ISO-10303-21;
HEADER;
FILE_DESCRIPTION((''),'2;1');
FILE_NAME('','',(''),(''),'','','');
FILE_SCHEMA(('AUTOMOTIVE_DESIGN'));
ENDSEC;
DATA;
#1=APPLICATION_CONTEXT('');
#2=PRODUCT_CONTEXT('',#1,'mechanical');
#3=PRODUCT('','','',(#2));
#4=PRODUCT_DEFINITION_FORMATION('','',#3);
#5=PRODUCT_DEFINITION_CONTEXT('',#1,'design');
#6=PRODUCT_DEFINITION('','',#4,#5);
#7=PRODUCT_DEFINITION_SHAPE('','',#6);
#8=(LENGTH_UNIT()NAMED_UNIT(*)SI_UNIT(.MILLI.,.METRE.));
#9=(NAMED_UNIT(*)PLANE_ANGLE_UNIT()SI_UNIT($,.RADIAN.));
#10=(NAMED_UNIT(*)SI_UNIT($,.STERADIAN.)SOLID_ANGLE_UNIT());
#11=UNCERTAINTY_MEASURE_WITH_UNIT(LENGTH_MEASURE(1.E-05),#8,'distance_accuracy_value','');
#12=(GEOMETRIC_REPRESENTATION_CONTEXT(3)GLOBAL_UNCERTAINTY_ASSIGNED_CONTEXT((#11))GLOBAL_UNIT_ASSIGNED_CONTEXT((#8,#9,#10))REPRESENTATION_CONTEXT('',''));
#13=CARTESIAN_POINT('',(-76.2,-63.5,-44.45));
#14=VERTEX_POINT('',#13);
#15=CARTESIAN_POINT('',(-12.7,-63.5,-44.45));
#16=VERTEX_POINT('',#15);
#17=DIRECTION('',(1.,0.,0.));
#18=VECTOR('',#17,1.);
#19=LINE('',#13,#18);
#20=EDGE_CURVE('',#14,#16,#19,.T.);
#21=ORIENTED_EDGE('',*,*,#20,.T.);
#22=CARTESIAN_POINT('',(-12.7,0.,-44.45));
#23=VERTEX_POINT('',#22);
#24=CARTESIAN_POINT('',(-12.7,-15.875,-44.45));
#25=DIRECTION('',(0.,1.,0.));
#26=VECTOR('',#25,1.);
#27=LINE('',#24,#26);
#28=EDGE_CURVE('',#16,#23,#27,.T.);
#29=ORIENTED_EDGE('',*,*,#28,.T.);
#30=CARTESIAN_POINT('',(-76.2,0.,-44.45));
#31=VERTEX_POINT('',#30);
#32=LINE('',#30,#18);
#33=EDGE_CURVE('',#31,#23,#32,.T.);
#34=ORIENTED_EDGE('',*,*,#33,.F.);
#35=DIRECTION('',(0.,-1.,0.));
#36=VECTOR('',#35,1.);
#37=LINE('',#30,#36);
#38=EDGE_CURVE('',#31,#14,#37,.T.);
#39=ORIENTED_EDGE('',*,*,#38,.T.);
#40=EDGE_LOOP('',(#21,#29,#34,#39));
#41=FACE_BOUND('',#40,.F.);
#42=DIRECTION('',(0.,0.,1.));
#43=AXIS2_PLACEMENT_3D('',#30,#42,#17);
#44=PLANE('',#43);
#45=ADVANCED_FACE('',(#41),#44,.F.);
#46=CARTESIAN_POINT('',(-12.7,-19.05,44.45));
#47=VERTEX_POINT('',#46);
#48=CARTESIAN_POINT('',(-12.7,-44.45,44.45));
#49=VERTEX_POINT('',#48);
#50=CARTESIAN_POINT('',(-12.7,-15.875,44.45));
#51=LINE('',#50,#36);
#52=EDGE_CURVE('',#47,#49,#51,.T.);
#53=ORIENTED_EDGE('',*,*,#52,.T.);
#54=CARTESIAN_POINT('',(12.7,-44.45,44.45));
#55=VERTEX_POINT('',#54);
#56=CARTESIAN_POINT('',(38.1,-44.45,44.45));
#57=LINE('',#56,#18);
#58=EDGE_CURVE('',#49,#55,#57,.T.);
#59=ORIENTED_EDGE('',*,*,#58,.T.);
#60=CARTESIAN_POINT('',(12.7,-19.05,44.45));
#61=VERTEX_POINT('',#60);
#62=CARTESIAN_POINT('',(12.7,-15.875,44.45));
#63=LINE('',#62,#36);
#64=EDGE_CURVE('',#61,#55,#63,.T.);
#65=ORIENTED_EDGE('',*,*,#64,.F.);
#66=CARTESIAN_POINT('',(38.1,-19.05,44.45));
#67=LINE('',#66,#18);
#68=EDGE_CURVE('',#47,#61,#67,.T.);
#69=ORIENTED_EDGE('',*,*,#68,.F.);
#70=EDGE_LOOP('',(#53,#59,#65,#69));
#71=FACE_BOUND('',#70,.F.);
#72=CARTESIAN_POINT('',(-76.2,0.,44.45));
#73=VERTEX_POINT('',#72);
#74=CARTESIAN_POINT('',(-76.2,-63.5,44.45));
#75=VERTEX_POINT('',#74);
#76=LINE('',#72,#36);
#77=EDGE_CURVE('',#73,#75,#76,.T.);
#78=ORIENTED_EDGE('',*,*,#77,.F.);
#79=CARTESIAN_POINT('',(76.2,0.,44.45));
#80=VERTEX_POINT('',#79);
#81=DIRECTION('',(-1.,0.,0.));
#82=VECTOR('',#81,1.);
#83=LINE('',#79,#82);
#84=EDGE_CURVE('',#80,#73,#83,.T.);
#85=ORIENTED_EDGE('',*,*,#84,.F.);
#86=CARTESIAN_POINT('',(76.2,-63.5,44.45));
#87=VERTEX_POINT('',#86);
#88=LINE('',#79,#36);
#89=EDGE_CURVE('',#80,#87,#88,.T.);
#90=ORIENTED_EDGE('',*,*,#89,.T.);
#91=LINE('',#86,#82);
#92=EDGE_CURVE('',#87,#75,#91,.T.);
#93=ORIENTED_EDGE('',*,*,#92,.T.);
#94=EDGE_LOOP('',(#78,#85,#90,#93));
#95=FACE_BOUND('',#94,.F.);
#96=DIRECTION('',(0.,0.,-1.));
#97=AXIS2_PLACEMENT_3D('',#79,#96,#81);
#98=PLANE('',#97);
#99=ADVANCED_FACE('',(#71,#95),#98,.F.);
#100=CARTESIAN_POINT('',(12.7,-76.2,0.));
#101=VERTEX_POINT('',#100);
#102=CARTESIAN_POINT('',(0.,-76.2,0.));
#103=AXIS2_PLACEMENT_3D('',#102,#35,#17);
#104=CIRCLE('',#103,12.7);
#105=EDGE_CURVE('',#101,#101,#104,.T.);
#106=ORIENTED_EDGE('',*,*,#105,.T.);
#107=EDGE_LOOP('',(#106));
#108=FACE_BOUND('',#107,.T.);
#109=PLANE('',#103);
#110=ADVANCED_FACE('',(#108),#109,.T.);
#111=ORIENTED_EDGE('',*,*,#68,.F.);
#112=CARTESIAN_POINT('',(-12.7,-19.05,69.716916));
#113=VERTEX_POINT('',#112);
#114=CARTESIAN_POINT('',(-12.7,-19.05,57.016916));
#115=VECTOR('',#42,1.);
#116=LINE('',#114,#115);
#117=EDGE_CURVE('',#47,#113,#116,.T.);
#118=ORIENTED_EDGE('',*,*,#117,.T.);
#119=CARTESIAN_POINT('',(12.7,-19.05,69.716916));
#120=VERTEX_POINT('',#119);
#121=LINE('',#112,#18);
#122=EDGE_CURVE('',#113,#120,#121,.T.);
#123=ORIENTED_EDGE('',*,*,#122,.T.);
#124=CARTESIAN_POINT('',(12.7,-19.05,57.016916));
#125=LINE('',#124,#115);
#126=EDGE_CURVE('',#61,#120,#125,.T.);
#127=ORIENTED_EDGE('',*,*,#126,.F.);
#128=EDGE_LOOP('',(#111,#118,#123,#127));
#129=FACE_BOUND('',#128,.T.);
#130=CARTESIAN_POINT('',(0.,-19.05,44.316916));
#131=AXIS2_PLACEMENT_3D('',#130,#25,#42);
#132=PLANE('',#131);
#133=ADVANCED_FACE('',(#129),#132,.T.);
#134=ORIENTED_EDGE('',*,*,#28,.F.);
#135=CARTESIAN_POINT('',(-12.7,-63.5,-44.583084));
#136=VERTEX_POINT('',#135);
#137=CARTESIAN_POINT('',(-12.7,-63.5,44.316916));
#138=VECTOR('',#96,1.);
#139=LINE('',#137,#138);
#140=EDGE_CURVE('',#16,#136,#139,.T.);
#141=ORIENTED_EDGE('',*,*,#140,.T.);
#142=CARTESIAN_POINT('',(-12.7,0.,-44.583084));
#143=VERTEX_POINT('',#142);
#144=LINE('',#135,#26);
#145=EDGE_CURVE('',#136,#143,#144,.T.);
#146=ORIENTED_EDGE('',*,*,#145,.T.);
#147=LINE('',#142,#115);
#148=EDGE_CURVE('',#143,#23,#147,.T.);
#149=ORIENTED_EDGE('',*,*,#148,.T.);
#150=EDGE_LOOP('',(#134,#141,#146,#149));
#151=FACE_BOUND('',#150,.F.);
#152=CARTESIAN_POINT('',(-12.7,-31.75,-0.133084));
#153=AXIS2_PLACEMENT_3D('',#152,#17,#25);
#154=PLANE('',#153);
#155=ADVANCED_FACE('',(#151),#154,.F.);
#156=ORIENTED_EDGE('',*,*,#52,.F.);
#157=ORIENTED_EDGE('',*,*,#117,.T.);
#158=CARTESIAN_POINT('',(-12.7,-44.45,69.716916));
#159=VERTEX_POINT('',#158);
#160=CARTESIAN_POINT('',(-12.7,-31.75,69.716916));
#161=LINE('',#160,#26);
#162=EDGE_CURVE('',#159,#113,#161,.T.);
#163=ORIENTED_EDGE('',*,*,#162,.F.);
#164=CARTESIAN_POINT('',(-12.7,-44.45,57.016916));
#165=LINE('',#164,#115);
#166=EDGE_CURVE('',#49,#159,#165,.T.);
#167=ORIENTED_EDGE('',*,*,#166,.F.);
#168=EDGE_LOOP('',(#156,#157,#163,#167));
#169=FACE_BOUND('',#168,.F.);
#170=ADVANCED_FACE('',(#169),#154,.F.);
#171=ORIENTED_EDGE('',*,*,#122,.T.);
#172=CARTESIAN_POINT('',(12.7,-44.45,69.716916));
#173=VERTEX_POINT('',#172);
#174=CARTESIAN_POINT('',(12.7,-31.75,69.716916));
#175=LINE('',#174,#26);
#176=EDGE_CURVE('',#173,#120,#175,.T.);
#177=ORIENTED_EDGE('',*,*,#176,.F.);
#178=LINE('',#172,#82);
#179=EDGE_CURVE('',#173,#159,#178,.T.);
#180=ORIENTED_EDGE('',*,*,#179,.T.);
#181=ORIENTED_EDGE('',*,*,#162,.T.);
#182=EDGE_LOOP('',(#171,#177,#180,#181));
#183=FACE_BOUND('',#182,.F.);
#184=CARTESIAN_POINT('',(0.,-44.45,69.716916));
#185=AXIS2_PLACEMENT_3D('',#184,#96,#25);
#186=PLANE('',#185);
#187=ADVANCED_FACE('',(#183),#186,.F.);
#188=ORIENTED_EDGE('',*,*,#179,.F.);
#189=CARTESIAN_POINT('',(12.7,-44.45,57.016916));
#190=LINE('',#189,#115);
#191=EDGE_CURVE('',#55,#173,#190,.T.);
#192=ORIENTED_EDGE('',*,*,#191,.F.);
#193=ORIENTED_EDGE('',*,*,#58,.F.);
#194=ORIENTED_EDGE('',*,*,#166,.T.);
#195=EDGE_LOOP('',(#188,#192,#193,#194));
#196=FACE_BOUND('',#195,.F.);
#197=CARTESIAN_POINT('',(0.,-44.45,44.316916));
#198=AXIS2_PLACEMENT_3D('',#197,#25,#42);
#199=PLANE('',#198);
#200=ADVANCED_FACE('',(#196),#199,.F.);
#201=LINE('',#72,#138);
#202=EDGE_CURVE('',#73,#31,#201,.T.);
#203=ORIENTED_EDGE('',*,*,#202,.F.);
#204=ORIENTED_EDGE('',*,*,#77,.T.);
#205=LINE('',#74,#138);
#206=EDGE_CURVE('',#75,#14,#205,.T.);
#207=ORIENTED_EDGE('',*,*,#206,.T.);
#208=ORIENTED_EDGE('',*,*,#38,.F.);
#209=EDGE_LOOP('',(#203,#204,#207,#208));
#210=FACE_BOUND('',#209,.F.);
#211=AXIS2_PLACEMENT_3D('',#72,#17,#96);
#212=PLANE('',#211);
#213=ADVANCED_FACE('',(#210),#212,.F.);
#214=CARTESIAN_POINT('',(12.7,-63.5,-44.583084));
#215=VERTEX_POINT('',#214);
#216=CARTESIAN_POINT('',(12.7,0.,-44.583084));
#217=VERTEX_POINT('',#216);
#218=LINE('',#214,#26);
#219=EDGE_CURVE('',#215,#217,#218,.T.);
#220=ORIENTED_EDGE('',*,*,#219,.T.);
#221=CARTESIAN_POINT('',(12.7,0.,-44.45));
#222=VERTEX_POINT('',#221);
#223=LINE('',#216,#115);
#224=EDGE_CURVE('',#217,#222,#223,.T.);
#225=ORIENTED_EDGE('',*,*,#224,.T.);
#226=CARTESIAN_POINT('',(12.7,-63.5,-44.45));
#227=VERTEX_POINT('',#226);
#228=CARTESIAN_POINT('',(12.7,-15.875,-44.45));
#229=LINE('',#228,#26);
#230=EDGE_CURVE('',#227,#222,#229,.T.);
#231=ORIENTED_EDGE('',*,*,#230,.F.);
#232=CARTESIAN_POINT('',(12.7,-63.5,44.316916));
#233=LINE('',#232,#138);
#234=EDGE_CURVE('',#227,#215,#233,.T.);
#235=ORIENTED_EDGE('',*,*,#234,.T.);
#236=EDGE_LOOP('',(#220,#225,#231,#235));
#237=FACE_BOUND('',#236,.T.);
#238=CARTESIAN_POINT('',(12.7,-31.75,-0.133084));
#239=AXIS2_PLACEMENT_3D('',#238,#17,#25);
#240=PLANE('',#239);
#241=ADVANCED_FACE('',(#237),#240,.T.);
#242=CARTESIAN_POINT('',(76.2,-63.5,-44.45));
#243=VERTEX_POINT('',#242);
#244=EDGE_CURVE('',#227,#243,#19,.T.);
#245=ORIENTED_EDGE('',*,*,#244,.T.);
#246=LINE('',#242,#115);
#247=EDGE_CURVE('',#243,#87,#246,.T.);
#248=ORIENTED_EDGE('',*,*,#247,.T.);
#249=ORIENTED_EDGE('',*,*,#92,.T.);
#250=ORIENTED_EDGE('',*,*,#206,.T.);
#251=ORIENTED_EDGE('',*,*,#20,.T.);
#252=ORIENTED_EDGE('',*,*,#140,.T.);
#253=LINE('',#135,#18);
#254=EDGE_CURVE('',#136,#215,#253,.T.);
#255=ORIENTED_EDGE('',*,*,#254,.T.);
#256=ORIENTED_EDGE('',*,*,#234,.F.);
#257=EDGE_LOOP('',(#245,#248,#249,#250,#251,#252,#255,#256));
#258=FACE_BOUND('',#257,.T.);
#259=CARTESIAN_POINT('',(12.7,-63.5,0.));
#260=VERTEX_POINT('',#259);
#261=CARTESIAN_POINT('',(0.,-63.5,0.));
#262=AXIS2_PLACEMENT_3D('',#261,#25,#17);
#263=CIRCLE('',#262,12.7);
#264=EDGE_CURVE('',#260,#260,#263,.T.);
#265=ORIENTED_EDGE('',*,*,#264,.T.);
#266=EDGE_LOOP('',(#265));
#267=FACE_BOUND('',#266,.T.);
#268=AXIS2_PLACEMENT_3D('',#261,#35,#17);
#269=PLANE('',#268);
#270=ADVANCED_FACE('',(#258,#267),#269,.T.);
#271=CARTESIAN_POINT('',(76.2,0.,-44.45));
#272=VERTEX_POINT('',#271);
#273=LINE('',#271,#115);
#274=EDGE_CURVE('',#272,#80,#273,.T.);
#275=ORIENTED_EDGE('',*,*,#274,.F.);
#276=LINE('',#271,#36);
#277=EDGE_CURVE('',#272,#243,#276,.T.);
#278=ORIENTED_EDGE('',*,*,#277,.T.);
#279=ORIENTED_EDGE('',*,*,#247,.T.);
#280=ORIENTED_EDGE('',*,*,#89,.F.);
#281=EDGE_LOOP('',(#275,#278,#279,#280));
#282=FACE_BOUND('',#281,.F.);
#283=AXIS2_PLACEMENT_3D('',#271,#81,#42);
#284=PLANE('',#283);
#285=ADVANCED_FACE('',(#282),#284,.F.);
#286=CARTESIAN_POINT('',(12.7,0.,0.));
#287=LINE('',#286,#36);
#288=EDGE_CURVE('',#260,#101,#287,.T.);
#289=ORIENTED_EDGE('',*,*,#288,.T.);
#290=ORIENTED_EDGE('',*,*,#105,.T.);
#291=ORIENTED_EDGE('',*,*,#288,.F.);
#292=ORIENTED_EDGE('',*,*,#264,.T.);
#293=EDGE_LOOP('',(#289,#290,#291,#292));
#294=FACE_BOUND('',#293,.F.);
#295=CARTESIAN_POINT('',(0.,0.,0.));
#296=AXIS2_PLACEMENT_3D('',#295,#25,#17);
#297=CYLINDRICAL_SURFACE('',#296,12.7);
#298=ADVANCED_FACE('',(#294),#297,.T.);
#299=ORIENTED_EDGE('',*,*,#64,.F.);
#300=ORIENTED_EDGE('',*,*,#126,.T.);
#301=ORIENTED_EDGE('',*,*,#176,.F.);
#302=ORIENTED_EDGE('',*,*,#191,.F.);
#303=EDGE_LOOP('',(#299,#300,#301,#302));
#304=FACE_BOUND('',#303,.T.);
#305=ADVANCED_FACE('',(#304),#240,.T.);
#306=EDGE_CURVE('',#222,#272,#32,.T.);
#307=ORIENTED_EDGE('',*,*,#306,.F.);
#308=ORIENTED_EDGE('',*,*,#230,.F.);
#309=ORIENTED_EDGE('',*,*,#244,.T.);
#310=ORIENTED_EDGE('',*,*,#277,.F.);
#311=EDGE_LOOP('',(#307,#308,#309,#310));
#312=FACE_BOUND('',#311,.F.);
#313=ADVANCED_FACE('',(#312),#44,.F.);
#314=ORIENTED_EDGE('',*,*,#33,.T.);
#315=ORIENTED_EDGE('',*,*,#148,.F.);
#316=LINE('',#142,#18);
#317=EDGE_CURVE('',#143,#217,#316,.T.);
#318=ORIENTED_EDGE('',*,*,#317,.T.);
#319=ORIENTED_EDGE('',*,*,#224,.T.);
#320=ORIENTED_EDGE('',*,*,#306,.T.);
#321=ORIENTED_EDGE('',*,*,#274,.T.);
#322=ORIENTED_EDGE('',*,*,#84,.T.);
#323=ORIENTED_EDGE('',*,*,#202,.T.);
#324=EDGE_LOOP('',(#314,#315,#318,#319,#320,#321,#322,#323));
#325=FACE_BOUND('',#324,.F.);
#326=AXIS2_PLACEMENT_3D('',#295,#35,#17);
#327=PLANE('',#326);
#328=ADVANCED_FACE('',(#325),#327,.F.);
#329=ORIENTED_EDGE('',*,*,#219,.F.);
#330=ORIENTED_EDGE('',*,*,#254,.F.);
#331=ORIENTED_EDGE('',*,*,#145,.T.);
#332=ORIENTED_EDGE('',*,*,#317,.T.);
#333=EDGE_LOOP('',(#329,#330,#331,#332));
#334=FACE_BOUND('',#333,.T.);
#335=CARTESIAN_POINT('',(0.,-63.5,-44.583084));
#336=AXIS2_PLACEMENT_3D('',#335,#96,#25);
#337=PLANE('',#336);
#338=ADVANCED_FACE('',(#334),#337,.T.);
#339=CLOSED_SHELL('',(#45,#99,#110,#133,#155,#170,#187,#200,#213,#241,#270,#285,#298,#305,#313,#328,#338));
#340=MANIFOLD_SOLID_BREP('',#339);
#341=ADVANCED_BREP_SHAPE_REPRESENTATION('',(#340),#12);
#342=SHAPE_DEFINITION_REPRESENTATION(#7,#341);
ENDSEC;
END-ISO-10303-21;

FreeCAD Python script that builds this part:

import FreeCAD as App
import Part
import Sketcher
from FreeCAD import Vector
Q = App.Units.Quantity

doc = App.newDocument("Part")
params = doc.addObject("Spreadsheet::Sheet", "Params")
for row, (alias, value) in enumerate([
    ("sketch1_diameter", "1 in"),
    ("sketch1_width", "6 in"),
    ("sketch1_height", "3.5 in"),
    ("pad1_length", "2.5 in"),
    ("sketch2_diameter", "1 in"),
    ("pad2_length", "3 in"),
    ("sketch3_width", "1 in"),
    ("sketch3_width2", "2.5 in"),
    ("sketch3_height", "3.5 in"),
    ("pad3_length", "1 in"),
], start=1):
    params.set(f"A{row}", alias)
    params.set(f"B{row}", "=" + value)
    params.setAlias(f"B{row}", alias)

body = doc.addObject("PartDesign::Body", "Body")

# Sketch on XZ plane
sketch1 = doc.addObject("Sketcher::SketchObject", "Sketch")
body.addObject(sketch1)
sketch1.AttachmentSupport = (doc.XZ_Plane, [""])
sketch1.MapMode = "FlatFace"
sketch1.addGeometry(Part.LineSegment(Vector(-76, 44, 0), Vector(-76, -44, 0)), False)
sketch1.addGeometry(Part.LineSegment(Vector(-76, -44, 0), Vector(76, -44, 0)), False)
sketch1.addGeometry(Part.LineSegment(Vector(76, -44, 0), Vector(76, 44, 0)), False)
sketch1.addGeometry(Part.LineSegment(Vector(76, 44, 0), Vector(-76, 44, 0)), False)
sketch1.addGeometry(Part.Circle(Vector(0, 0, 0), Vector(0, 0, 1), 13), False)
sketch1.addConstraint(Sketcher.Constraint("Coincident", 0, 2, 1, 1))
sketch1.addConstraint(Sketcher.Constraint("Coincident", 1, 2, 2, 1))
sketch1.addConstraint(Sketcher.Constraint("Coincident", 2, 2, 3, 1))
sketch1.addConstraint(Sketcher.Constraint("Coincident", 3, 2, 0, 1))
sketch1.addConstraint(Sketcher.Constraint("Vertical", 0))
sketch1.addConstraint(Sketcher.Constraint("Horizontal", 1))
sketch1.addConstraint(Sketcher.Constraint("Vertical", 2))
sketch1.addConstraint(Sketcher.Constraint("Horizontal", 3))
sketch1.addConstraint(Sketcher.Constraint("Coincident", 4, 3, -1, 1))
sketch1.addConstraint(Sketcher.Constraint("Symmetric", 0, 2, 2, 2, -1, 1))
sketch1.addConstraint(Sketcher.Constraint("Diameter", 4, Q("1 in")))
sketch1.addConstraint(Sketcher.Constraint("DistanceX", 1, 1, 1, 2, Q("6 in")))
sketch1.addConstraint(Sketcher.Constraint("DistanceY", 0, 2, 0, 1, Q("3.5 in")))
sketch1.setExpression("Constraints[10]", "Params.sketch1_diameter")
sketch1.setExpression("Constraints[11]", "Params.sketch1_width")
sketch1.setExpression("Constraints[12]", "Params.sketch1_height")
pad1 = doc.addObject("PartDesign::Pad", "Pad")
body.addObject(pad1)
pad1.Profile = sketch1
pad1.setExpression("Length", "Params.pad1_length")

# Sketch on XZ plane
sketch2 = doc.addObject("Sketcher::SketchObject", "Sketch001")
body.addObject(sketch2)
sketch2.AttachmentSupport = (doc.XZ_Plane, [""])
sketch2.MapMode = "FlatFace"
sketch2.addGeometry(Part.Circle(Vector(0, 0, 0), Vector(0, 0, 1), 13), False)
sketch2.addConstraint(Sketcher.Constraint("Coincident", 0, 3, -1, 1))
sketch2.addConstraint(Sketcher.Constraint("Diameter", 0, Q("1 in")))
sketch2.setExpression("Constraints[1]", "Params.sketch2_diameter")
pad2 = doc.addObject("PartDesign::Pad", "Pad001")
body.addObject(pad2)
pad2.Profile = sketch2
pad2.setExpression("Length", "Params.pad2_length")

# Sketch on YZ plane
sketch3 = doc.addObject("Sketcher::SketchObject", "Sketch002")
body.addObject(sketch3)
sketch3.AttachmentSupport = (doc.YZ_Plane, [""])
sketch3.MapMode = "FlatFace"
sketch3.addGeometry(Part.LineSegment(Vector(-64, 44, 0), Vector(-64, -45, 0)), False)
sketch3.addGeometry(Part.LineSegment(Vector(-64, -45, 0), Vector(0, -45, 0)), False)
sketch3.addGeometry(Part.LineSegment(Vector(0, -45, 0), Vector(0, 44, 0)), False)
sketch3.addGeometry(Part.LineSegment(Vector(0, 44, 0), Vector(-19, 44, 0)), False)
sketch3.addGeometry(Part.LineSegment(Vector(-19, 44, 0), Vector(-19, 70, 0)), False)
sketch3.addGeometry(Part.LineSegment(Vector(-19, 70, 0), Vector(-44, 70, 0)), False)
sketch3.addGeometry(Part.LineSegment(Vector(-44, 70, 0), Vector(-44, 44, 0)), False)
sketch3.addGeometry(Part.LineSegment(Vector(-44, 44, 0), Vector(-64, 44, 0)), False)
sketch3.addConstraint(Sketcher.Constraint("Coincident", 0, 2, 1, 1))
sketch3.addConstraint(Sketcher.Constraint("Coincident", 1, 2, 2, 1))
sketch3.addConstraint(Sketcher.Constraint("Coincident", 2, 2, 3, 1))
sketch3.addConstraint(Sketcher.Constraint("Coincident", 3, 2, 4, 1))
sketch3.addConstraint(Sketcher.Constraint("Coincident", 4, 2, 5, 1))
sketch3.addConstraint(Sketcher.Constraint("Coincident", 5, 2, 6, 1))
sketch3.addConstraint(Sketcher.Constraint("Coincident", 6, 2, 7, 1))
sketch3.addConstraint(Sketcher.Constraint("Coincident", 7, 2, 0, 1))
sketch3.addConstraint(Sketcher.Constraint("Vertical", 0))
sketch3.addConstraint(Sketcher.Constraint("Horizontal", 1))
sketch3.addConstraint(Sketcher.Constraint("Vertical", 2))
sketch3.addConstraint(Sketcher.Constraint("Horizontal", 3))
sketch3.addConstraint(Sketcher.Constraint("Vertical", 4))
sketch3.addConstraint(Sketcher.Constraint("Horizontal", 5))
sketch3.addConstraint(Sketcher.Constraint("Vertical", 6))
sketch3.addConstraint(Sketcher.Constraint("Horizontal", 7))
sketch3.addConstraint(Sketcher.Constraint("PointOnObject", 1, 2, -2))
sketch3.addConstraint(Sketcher.Constraint("Horizontal", 3, 2, 6, 2))
sketch3.addConstraint(Sketcher.Constraint("Equal", 3, 7))
sketch3.addConstraint(Sketcher.Constraint("Equal", 5, 4))
sketch3.addConstraint(Sketcher.Constraint("DistanceX", 5, 2, 5, 1, Q("1 in")))
sketch3.addConstraint(Sketcher.Constraint("DistanceX", 1, 1, 1, 2, Q("2.5 in")))
sketch3.addConstraint(Sketcher.Constraint("DistanceY", 0, 2, 0, 1, Q("3.5 in")))
sketch3.addConstraint(Sketcher.Constraint("DistanceY", 0, 2, -1, 1, 44.583084))
sketch3.setExpression("Constraints[20]", "Params.sketch3_width")
sketch3.setExpression("Constraints[21]", "Params.sketch3_width2")
sketch3.setExpression("Constraints[22]", "Params.sketch3_height")
pad3 = doc.addObject("PartDesign::Pad", "Pad002")
body.addObject(pad3)
pad3.Profile = sketch3
pad3.setExpression("Length", "Params.pad3_length")
pad3.Midplane = True

doc.recompute()
